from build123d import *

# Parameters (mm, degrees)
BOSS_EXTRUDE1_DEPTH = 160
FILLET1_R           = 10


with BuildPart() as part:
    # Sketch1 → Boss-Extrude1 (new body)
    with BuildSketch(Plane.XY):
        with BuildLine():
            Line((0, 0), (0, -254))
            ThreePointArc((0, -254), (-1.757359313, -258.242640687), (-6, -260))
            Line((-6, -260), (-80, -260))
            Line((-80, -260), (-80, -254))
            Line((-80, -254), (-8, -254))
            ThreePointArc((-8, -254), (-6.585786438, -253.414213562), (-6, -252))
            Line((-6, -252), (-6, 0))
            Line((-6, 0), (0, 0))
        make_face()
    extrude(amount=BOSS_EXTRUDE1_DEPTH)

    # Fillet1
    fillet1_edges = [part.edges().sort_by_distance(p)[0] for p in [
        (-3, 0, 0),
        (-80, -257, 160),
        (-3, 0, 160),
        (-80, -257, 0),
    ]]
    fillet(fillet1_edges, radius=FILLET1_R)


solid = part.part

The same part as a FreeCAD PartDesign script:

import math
import FreeCAD as App
import Part
import Sketcher
from FreeCAD import Vector
Q = App.Units.Quantity


def edges_at(feature, points):
    """Names of the edges that pass closest to the given points."""
    edges = feature.Shape.Edges
    near = lambda p: min(range(len(edges)), key=lambda i: edges[i].distToShape(Part.Vertex(*p))[0])
    return sorted({f"Edge{near(p) + 1}" for p in points})

doc = App.newDocument("Part")
body = doc.addObject("PartDesign::Body", "Body")

sketch1 = body.newObject("Sketcher::SketchObject", "Sketch")
sketch1.AttachmentSupport = (doc.getObject("XY_Plane"), [""])
sketch1.MapMode = "FlatFace"
sketch1.addGeometry(Part.LineSegment(Vector(0, -254, 0), Vector(0, 0, 0)), False)
sketch1.addGeometry(Part.LineSegment(Vector(0, 0, 0), Vector(-6, 0, 0)), False)
sketch1.addGeometry(Part.LineSegment(Vector(-6, 0, 0), Vector(-6, -252, 0)), False)
sketch1.addGeometry(Part.ArcOfCircle(Part.Circle(Vector(-8, -252, 0), Vector(0, 0, 1), 2), math.radians(-90), math.radians(0)), False)
sketch1.addGeometry(Part.LineSegment(Vector(-8, -254, 0), Vector(-80, -254, 0)), False)
sketch1.addGeometry(Part.LineSegment(Vector(-80, -254, 0), Vector(-80, -260, 0)), False)
sketch1.addGeometry(Part.LineSegment(Vector(-80, -260, 0), Vector(-6, -260, 0)), False)
sketch1.addGeometry(Part.ArcOfCircle(Part.Circle(Vector(-6, -254, 0), Vector(0, 0, 1), 6), math.radians(-90), math.radians(0)), False)
sketch1.addConstraint(Sketcher.Constraint("Coincident", 0, 2, 1, 1))
sketch1.addConstraint(Sketcher.Constraint("Coincident", 1, 2, 2, 1))
sketch1.addConstraint(Sketcher.Constraint("Tangent", 2, 2, 3, 2))
sketch1.addConstraint(Sketcher.Constraint("Tangent", 3, 1, 4, 1))
sketch1.addConstraint(Sketcher.Constraint("Coincident", 4, 2, 5, 1))
sketch1.addConstraint(Sketcher.Constraint("Coincident", 5, 2, 6, 1))
sketch1.addConstraint(Sketcher.Constraint("Tangent", 6, 2, 7, 1))
sketch1.addConstraint(Sketcher.Constraint("Tangent", 7, 2, 0, 1))
sketch1.addConstraint(Sketcher.Constraint("Vertical", 0))
sketch1.addConstraint(Sketcher.Constraint("Horizontal", 1))
sketch1.addConstraint(Sketcher.Constraint("Vertical", 2))
sketch1.addConstraint(Sketcher.Constraint("Horizontal", 4))
sketch1.addConstraint(Sketcher.Constraint("Vertical", 5))
sketch1.addConstraint(Sketcher.Constraint("Horizontal", 6))
sketch1.addConstraint(Sketcher.Constraint("Coincident", 0, 2, -1, 1))
sketch1.addConstraint(Sketcher.Constraint("Horizontal", 7, 3, 3, 1))
sketch1.addConstraint(Sketcher.Constraint("Vertical", 7, 3, 1, 2))
sketch1.addConstraint(Sketcher.Constraint("Radius", 3, Q("2 mm")))
sketch1.addConstraint(Sketcher.Constraint("Radius", 7, Q("6 mm")))
sketch1.addConstraint(Sketcher.Constraint("DistanceX", 4, 2, 4, 1, Q("72 mm")))
sketch1.addConstraint(Sketcher.Constraint("DistanceY", 0, 1, 0, 2, Q("254 mm")))
pad1 = body.newObject("PartDesign::Pad", "Pad")
pad1.Profile = sketch1
pad1.Length = 160
doc.recompute()

fillet = body.newObject("PartDesign::Fillet", "Fillet")
fillet.Base = (pad1, edges_at(pad1, [
    (-3, 0, 0),
    (-80, -257, 160),
    (-3, 0, 160),
    (-80, -257, 0),
]))
fillet.Radius = 10

doc.recompute()
